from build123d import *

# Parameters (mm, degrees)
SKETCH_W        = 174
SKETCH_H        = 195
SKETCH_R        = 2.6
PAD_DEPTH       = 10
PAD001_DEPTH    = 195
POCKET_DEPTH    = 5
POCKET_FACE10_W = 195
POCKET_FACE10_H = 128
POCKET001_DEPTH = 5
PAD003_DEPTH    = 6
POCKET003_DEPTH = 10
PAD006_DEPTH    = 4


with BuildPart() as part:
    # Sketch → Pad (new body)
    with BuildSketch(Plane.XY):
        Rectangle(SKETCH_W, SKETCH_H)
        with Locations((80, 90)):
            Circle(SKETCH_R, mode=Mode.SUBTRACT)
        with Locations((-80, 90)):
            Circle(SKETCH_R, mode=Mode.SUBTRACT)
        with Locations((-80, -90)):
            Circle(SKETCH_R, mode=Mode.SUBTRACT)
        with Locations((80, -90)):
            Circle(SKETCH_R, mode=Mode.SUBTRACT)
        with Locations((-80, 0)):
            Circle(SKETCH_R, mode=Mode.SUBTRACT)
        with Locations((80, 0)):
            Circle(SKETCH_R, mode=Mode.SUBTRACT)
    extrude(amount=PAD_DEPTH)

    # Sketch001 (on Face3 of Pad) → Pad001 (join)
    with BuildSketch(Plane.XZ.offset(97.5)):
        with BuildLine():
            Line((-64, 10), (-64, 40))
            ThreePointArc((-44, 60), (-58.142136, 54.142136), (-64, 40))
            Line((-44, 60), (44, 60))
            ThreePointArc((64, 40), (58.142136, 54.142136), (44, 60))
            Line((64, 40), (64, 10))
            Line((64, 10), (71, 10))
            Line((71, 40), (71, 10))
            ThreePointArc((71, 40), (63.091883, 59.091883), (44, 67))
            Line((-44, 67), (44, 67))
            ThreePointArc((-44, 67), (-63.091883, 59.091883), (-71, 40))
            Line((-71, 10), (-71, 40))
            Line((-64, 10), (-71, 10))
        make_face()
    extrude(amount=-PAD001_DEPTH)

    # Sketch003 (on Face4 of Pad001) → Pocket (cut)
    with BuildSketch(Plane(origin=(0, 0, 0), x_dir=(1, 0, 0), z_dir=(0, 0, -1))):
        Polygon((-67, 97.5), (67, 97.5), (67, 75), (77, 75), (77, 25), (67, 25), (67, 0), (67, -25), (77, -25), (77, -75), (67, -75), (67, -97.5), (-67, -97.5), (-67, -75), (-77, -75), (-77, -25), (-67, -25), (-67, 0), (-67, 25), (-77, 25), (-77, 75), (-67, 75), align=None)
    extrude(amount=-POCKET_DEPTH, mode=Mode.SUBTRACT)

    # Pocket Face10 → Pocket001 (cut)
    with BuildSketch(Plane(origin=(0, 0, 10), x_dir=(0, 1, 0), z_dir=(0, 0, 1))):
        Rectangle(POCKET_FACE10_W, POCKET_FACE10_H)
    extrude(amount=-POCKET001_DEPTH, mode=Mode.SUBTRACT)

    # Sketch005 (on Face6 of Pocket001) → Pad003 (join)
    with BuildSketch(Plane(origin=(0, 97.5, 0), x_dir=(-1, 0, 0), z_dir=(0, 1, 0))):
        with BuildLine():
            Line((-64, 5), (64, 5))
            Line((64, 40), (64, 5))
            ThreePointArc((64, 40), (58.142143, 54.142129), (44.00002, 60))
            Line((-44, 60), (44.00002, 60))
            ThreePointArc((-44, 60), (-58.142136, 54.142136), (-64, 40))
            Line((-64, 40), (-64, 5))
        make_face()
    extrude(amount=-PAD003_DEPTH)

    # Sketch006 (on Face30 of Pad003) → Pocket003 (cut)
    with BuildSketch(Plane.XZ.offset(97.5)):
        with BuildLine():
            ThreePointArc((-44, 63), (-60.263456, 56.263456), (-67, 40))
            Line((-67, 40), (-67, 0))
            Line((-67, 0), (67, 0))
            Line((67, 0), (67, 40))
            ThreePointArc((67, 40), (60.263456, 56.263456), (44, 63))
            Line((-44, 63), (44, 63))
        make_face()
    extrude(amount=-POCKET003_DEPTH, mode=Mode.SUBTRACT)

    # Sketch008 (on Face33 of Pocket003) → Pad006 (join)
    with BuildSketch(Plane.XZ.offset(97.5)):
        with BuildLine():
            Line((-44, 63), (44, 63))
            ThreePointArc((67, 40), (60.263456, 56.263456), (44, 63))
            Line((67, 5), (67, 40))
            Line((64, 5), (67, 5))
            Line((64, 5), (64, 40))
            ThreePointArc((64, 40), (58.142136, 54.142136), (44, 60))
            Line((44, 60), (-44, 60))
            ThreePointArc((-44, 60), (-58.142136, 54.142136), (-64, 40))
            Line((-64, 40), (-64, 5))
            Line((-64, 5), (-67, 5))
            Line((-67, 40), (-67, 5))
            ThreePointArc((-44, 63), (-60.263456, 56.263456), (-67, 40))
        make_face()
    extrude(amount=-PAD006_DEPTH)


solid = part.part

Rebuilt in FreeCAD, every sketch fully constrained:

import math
import FreeCAD as App
import Part
import Sketcher
from FreeCAD import Vector
Q = App.Units.Quantity


def add_polygon(sketch, points):
    """Adds a closed chain of lines whose ends are joined by coincident constraints."""
    first, n = sketch.GeometryCount, len(points)
    for a, b in zip(points, points[1:] + points[:1]):
        sketch.addGeometry(Part.LineSegment(App.Vector(*a, 0), App.Vector(*b, 0)), False)
    for i in range(n):
        sketch.addConstraint(Sketcher.Constraint("Coincident", first + i, 2, first + (i + 1) % n, 1))

doc = App.newDocument("Part")
body = doc.addObject("PartDesign::Body", "Body")

# Sketch on XY plane
sketch1 = body.newObject("Sketcher::SketchObject", "Sketch")
sketch1.AttachmentSupport = (doc.getObject("XY_Plane"), [""])
sketch1.MapMode = "FlatFace"
add_polygon(sketch1, [(-87, 97.5), (-87, -97.5), (87, -97.5), (87, 97.5)])  # lines 0-3
sketch1.addGeometry(Part.Circle(Vector(-80, -90, 0), Vector(0, 0, 1), 2.6), False)  # 4
sketch1.addGeometry(Part.Circle(Vector(80, -90, 0), Vector(0, 0, 1), 2.6), False)  # 5
sketch1.addGeometry(Part.Circle(Vector(-80, 0, 0), Vector(0, 0, 1), 2.6), False)  # 6
sketch1.addGeometry(Part.Circle(Vector(-80, 90, 0), Vector(0, 0, 1), 2.6), False)  # 7
sketch1.addGeometry(Part.Circle(Vector(80, 0, 0), Vector(0, 0, 1), 2.6), False)  # 8
sketch1.addGeometry(Part.Circle(Vector(80, 90, 0), Vector(0, 0, 1), 2.6), False)  # 9
sketch1.addConstraint(Sketcher.Constraint("Vertical", 0))
sketch1.addConstraint(Sketcher.Constraint("Horizontal", 1))
sketch1.addConstraint(Sketcher.Constraint("Vertical", 2))
sketch1.addConstraint(Sketcher.Constraint("Horizontal", 3))
sketch1.addConstraint(Sketcher.Constraint("Equal", 4, 5))
sketch1.addConstraint(Sketcher.Constraint("Equal", 5, 6))
sketch1.addConstraint(Sketcher.Constraint("Equal", 6, 7))
sketch1.addConstraint(Sketcher.Constraint("Equal", 7, 8))
sketch1.addConstraint(Sketcher.Constraint("Equal", 8, 9))
sketch1.addConstraint(Sketcher.Constraint("Symmetric", 5, 3, 7, 3, -1, 1))
sketch1.addConstraint(Sketcher.Constraint("Symmetric", 6, 3, 8, 3, -1, 1))
sketch1.addConstraint(Sketcher.Constraint("Symmetric", 4, 3, 9, 3, -1, 1))
sketch1.addConstraint(Sketcher.Constraint("Symmetric", 0, 2, 2, 2, -1, 1))
sketch1.addConstraint(Sketcher.Constraint("Symmetric", 4, 3, 5, 3, -2))
sketch1.addConstraint(Sketcher.Constraint("PointOnObject", 6, 3, -1))
sketch1.addConstraint(Sketcher.Constraint("Vertical", 4, 3, 6, 3))
sketch1.addConstraint(Sketcher.Constraint("Diameter", 4, Q("5.2 mm")))
sketch1.addConstraint(Sketcher.Constraint("DistanceX", 1, 1, 1, 2, Q("174 mm")))
sketch1.addConstraint(Sketcher.Constraint("DistanceY", 0, 2, 0, 1, Q("195 mm")))
sketch1.addConstraint(Sketcher.Constraint("DistanceX", 4, 3, -1, 1, Q("80 mm")))
sketch1.addConstraint(Sketcher.Constraint("DistanceY", 4, 3, -1, 1, Q("90 mm")))
pad1 = body.newObject("PartDesign::Pad", "Pad")
pad1.Profile = sketch1
pad1.Length = 10

# Sketch on XZ plane
sketch2 = body.newObject("Sketcher::SketchObject", "Sketch001")
sketch2.AttachmentSupport = (doc.getObject("XZ_Plane"), [""])
sketch2.MapMode = "FlatFace"
sketch2.AttachmentOffset = App.Placement(Vector(0, 0, 97.5), App.Rotation())
sketch2.addGeometry(Part.LineSegment(Vector(-64, 10, 0), Vector(-64, 40, 0)), False)
sketch2.addGeometry(Part.ArcOfCircle(Part.Circle(Vector(-44.000001, 40.000001, 0), Vector(0, 0, 1), 19.999999), math.radians(89.999996), math.radians(180.000004)), False)
sketch2.addGeometry(Part.LineSegment(Vector(-44, 60, 0), Vector(44, 60, 0)), False)
sketch2.addGeometry(Part.ArcOfCircle(Part.Circle(Vector(44.000001, 40.000001, 0), Vector(0, 0, 1), 19.999999), math.radians(-0.000004), math.radians(90.000004)), False)
sketch2.addGeometry(Part.LineSegment(Vector(64, 40, 0), Vector(64, 10, 0)), False)
sketch2.addGeometry(Part.LineSegment(Vector(64, 10, 0), Vector(71, 10, 0)), False)
sketch2.addGeometry(Part.LineSegment(Vector(71, 10, 0), Vector(71, 40, 0)), False)
sketch2.addGeometry(Part.ArcOfCircle(Part.Circle(Vector(44, 40, 0), Vector(0, 0, 1), 27), math.radians(0.000001), math.radians(89.999999)), False)
sketch2.addGeometry(Part.LineSegment(Vector(44, 67, 0), Vector(-44, 67, 0)), False)
sketch2.addGeometry(Part.ArcOfCircle(Part.Circle(Vector(-44, 40, 0), Vector(0, 0, 1), 27), math.radians(90.000001), math.radians(179.999999)), False)
sketch2.addGeometry(Part.LineSegment(Vector(-71, 40, 0), Vector(-71, 10, 0)), False)
sketch2.addGeometry(Part.LineSegment(Vector(-71, 10, 0), Vector(-64, 10, 0)), False)
sketch2.addConstraint(Sketcher.Constraint("Tangent", 0, 2, 1, 2))
sketch2.addConstraint(Sketcher.Constraint("Tangent", 1, 1, 2, 1))
sketch2.addConstraint(Sketcher.Constraint("Tangent", 2, 2, 3, 2))
sketch2.addConstraint(Sketcher.Constraint("Tangent", 3, 1, 4, 1))
sketch2.addConstraint(Sketcher.Constraint("Coincident", 4, 2, 5, 1))
sketch2.addConstraint(Sketcher.Constraint("Coincident", 5, 2, 6, 1))
sketch2.addConstraint(Sketcher.Constraint("Tangent", 6, 2, 7, 1))
sketch2.addConstraint(Sketcher.Constraint("Tangent", 7, 2, 8, 1))
sketch2.addConstraint(Sketcher.Constraint("Tangent", 8, 2, 9, 1))
sketch2.addConstraint(Sketcher.Constraint("Tangent", 9, 2, 10, 1))
sketch2.addConstraint(Sketcher.Constraint("Coincident", 10, 2, 11, 1))
sketch2.addConstraint(Sketcher.Constraint("Coincident", 11, 2, 0, 1))
sketch2.addConstraint(Sketcher.Constraint("Vertical", 0))
sketch2.addConstraint(Sketcher.Constraint("Horizontal", 2))
sketch2.addConstraint(Sketcher.Constraint("Vertical", 4))
sketch2.addConstraint(Sketcher.Constraint("Horizontal", 5))
sketch2.addConstraint(Sketcher.Constraint("Vertical", 6))
sketch2.addConstraint(Sketcher.Constraint("Horizontal", 8))
sketch2.addConstraint(Sketcher.Constraint("Vertical", 10))
sketch2.addConstraint(Sketcher.Constraint("Horizontal", 11))
sketch2.addConstraint(Sketcher.Constraint("Coincident", 7, 3, 3, 3))
sketch2.addConstraint(Sketcher.Constraint("Coincident", 9, 3, 1, 3))
sketch2.addConstraint(Sketcher.Constraint("Equal", 1, 3))
sketch2.addConstraint(Sketcher.Constraint("Symmetric", 5, 2, 10, 2, -2))
sketch2.addConstraint(Sketcher.Constraint("Radius", 1, Q("19.999999 mm")))
sketch2.addConstraint(Sketcher.Constraint("Radius", 7, Q("27 mm")))
sketch2.addConstraint(Sketcher.Constraint("DistanceX", 2, 1, 2, 2, Q("88 mm")))
sketch2.addConstraint(Sketcher.Constraint("DistanceY", 0, 1, 0, 2, Q("30 mm")))
sketch2.addConstraint(Sketcher.Constraint("DistanceY", -1, 1, 1, 3, Q("40.000001 mm")))
pad2 = body.newObject("PartDesign::Pad", "Pad001")
pad2.Profile = sketch2
pad2.Length = 195
pad2.Reversed = True

# Sketch on XY plane
sketch3 = body.newObject("Sketcher::SketchObject", "Sketch002")
sketch3.AttachmentSupport = (doc.getObject("XY_Plane"), [""])
sketch3.MapMode = "FlatFace"
add_polygon(sketch3, [(67, -97.5), (-67, -97.5), (-67, -75), (-77, -75), (-77, -25), (-67, -25), (-67, 25), (-77, 25), (-77, 75), (-67, 75), (-67, 97.5), (67, 97.5), (67, 75), (77, 75), (77, 25), (67, 25), (67, -25), (77, -25), (77, -75), (67, -75)])  # lines 0-19
sketch3.addConstraint(Sketcher.Constraint("Horizontal", 0))
sketch3.addConstraint(Sketcher.Constraint("Vertical", 1))
sketch3.addConstraint(Sketcher.Constraint("Horizontal", 2))
sketch3.addConstraint(Sketcher.Constraint("Vertical", 3))
sketch3.addConstraint(Sketcher.Constraint("Horizontal", 4))
sketch3.addConstraint(Sketcher.Constraint("Vertical", 5))
sketch3.addConstraint(Sketcher.Constraint("Horizontal", 6))
sketch3.addConstraint(Sketcher.Constraint("Vertical", 7))
sketch3.addConstraint(Sketcher.Constraint("Horizontal", 8))
sketch3.addConstraint(Sketcher.Constraint("Vertical", 9))
sketch3.addConstraint(Sketcher.Constraint("Horizontal", 10))
sketch3.addConstraint(Sketcher.Constraint("Vertical", 11))
sketch3.addConstraint(Sketcher.Constraint("Horizontal", 12))
sketch3.addConstraint(Sketcher.Constraint("Vertical", 13))
sketch3.addConstraint(Sketcher.Constraint("Horizontal", 14))
sketch3.addConstraint(Sketcher.Constraint("Vertical", 15))
sketch3.addConstraint(Sketcher.Constraint("Horizontal", 16))
sketch3.addConstraint(Sketcher.Constraint("Vertical", 17))
sketch3.addConstraint(Sketcher.Constraint("Horizontal", 18))
sketch3.addConstraint(Sketcher.Constraint("Vertical", 19))
sketch3.addConstraint(Sketcher.Constraint("Symmetric", 0, 2, 10, 2, -1, 1))
sketch3.addConstraint(Sketcher.Constraint("Symmetric", 2, 2, 12, 2, -1, 1))
sketch3.addConstraint(Sketcher.Constraint("Symmetric", 4, 2, 14, 2, -1, 1))
sketch3.addConstraint(Sketcher.Constraint("Symmetric", 6, 2, 16, 2, -1, 1))
sketch3.addConstraint(Sketcher.Constraint("Symmetric", 8, 2, 18, 2, -1, 1))
sketch3.addConstraint(Sketcher.Constraint("Symmetric", 8, 2, 11, 2, -2))
sketch3.addConstraint(Sketcher.Constraint("Symmetric", 6, 2, 13, 2, -2))
sketch3.addConstraint(Sketcher.Constraint("Vertical", 1, 2, 4, 2))
sketch3.addConstraint(Sketcher.Constraint("Equal", 3, 5))
sketch3.addConstraint(Sketcher.Constraint("DistanceX", 0, 2, 0, 1, Q("134 mm")))
sketch3.addConstraint(Sketcher.Constraint("DistanceX", 2, 2, 2, 1, Q("10 mm")))
sketch3.addConstraint(Sketcher.Constraint("DistanceY", 3, 1, 3, 2, Q("50 mm")))
sketch3.addConstraint(Sketcher.Constraint("DistanceY", 1, 1, 1, 2, Q("22.5 mm")))
pocket1 = body.newObject("PartDesign::Pocket", "Pocket")
pocket1.Profile = sketch3
pocket1.Length = 5
pocket1.Reversed = True

# Sketch on XY plane
sketch4 = body.newObject("Sketcher::SketchObject", "Sketch003")
sketch4.AttachmentSupport = (doc.getObject("XY_Plane"), [""])
sketch4.MapMode = "FlatFace"
sketch4.AttachmentOffset = App.Placement(Vector(0, 0, 10), App.Rotation())
add_polygon(sketch4, [(-64, -97.5), (64, -97.5), (64, 97.5), (-64, 97.5)])  # lines 0-3
sketch4.addConstraint(Sketcher.Constraint("Horizontal", 0))
sketch4.addConstraint(Sketcher.Constraint("Vertical", 1))
sketch4.addConstraint(Sketcher.Constraint("Horizontal", 2))
sketch4.addConstraint(Sketcher.Constraint("Vertical", 3))
sketch4.addConstraint(Sketcher.Constraint("Symmetric", 0, 2, 2, 2, -1, 1))
sketch4.addConstraint(Sketcher.Constraint("DistanceX", 0, 1, 0, 2, Q("128 mm")))
sketch4.addConstraint(Sketcher.Constraint("DistanceY", 1, 1, 1, 2, Q("195 mm")))
pocket2 = body.newObject("PartDesign::Pocket", "Pocket001")
pocket2.Profile = sketch4
pocket2.Length = 5

# Sketch on XZ plane
sketch5 = body.newObject("Sketcher::SketchObject", "Sketch004")
sketch5.AttachmentSupport = (doc.getObject("XZ_Plane"), [""])
sketch5.MapMode = "FlatFace"
sketch5.AttachmentOffset = App.Placement(Vector(0, 0, -97.5), App.Rotation())
sketch5.addGeometry(Part.LineSegment(Vector(64, 5, 0), Vector(-64, 5, 0)), False)
sketch5.addGeometry(Part.LineSegment(Vector(-64, 5, 0), Vector(-64, 40, 0)), False)
sketch5.addGeometry(Part.ArcOfCircle(Part.Circle(Vector(-44.000001, 40.000001, 0), Vector(0, 0, 1), 19.999999), math.radians(90.000054), math.radians(180.000004)), False)
sketch5.addGeometry(Part.LineSegment(Vector(-44.00002, 60, 0), Vector(44, 60, 0)), False)
sketch5.addGeometry(Part.ArcOfCircle(Part.Circle(Vector(44.000001, 40.000001, 0), Vector(0, 0, 1), 19.999999), math.radians(-0.000004), math.radians(90.000004)), False)
sketch5.addGeometry(Part.LineSegment(Vector(64, 40, 0), Vector(64, 5, 0)), False)
sketch5.addConstraint(Sketcher.Constraint("Coincident", 0, 2, 1, 1))
sketch5.addConstraint(Sketcher.Constraint("Tangent", 1, 2, 2, 2))
sketch5.addConstraint(Sketcher.Constraint("Tangent", 2, 1, 3, 1))
sketch5.addConstraint(Sketcher.Constraint("Tangent", 3, 2, 4, 2))
sketch5.addConstraint(Sketcher.Constraint("Tangent", 4, 1, 5, 1))
sketch5.addConstraint(Sketcher.Constraint("Coincident", 5, 2, 0, 1))
sketch5.addConstraint(Sketcher.Constraint("Horizontal", 0))
sketch5.addConstraint(Sketcher.Constraint("Vertical", 1))
sketch5.addConstraint(Sketcher.Constraint("Horizontal", 3))
sketch5.addConstraint(Sketcher.Constraint("Vertical", 5))
sketch5.addConstraint(Sketcher.Constraint("Equal", 2, 4))
sketch5.addConstraint(Sketcher.Constraint("Radius", 2, Q("19.999999 mm")))
sketch5.addConstraint(Sketcher.Constraint("DistanceX", 0, 2, 0, 1, Q("128 mm")))
sketch5.addConstraint(Sketcher.Constraint("DistanceY", 1, 1, 1, 2, Q("35 mm")))
sketch5.addConstraint(Sketcher.Constraint("DistanceX", 2, 3, -1, 1, Q("44.000001 mm")))
sketch5.addConstraint(Sketcher.Constraint("DistanceY", -1, 1, 2, 3, Q("40.000001 mm")))
pad3 = body.newObject("PartDesign::Pad", "Pad002")
pad3.Profile = sketch5
pad3.Length = 6

# Sketch on XZ plane
sketch6 = body.newObject("Sketcher::SketchObject", "Sketch005")
sketch6.AttachmentSupport = (doc.getObject("XZ_Plane"), [""])
sketch6.MapMode = "FlatFace"
sketch6.AttachmentOffset = App.Placement(Vector(0, 0, 97.5), App.Rotation())
sketch6.addGeometry(Part.ArcOfCircle(Part.Circle(Vector(-44, 40, 0), Vector(0, 0, 1), 23), math.radians(90), math.radians(180)), False)
sketch6.addGeometry(Part.LineSegment(Vector(-67, 40, 0), Vector(-67, 0, 0)), False)
sketch6.addGeometry(Part.LineSegment(Vector(-67, 0, 0), Vector(67, 0, 0)), False)
sketch6.addGeometry(Part.LineSegment(Vector(67, 0, 0), Vector(67, 40, 0)), False)
sketch6.addGeometry(Part.ArcOfCircle(Part.Circle(Vector(44, 40, 0), Vector(0, 0, 1), 23), math.radians(0), math.radians(90)), False)
sketch6.addGeometry(Part.LineSegment(Vector(44, 63, 0), Vector(-44, 63, 0)), False)
sketch6.addConstraint(Sketcher.Constraint("Tangent", 0, 2, 1, 1))
sketch6.addConstraint(Sketcher.Constraint("Coincident", 1, 2, 2, 1))
sketch6.addConstraint(Sketcher.Constraint("Coincident", 2, 2, 3, 1))
sketch6.addConstraint(Sketcher.Constraint("Tangent", 3, 2, 4, 1))
sketch6.addConstraint(Sketcher.Constraint("Tangent", 4, 2, 5, 1))
sketch6.addConstraint(Sketcher.Constraint("Tangent", 5, 2, 0, 1))
sketch6.addConstraint(Sketcher.Constraint("Vertical", 1))
sketch6.addConstraint(Sketcher.Constraint("Horizontal", 2))
sketch6.addConstraint(Sketcher.Constraint("Vertical", 3))
sketch6.addConstraint(Sketcher.Constraint("Horizontal", 5))
sketch6.addConstraint(Sketcher.Constraint("Equal", 0, 4))
sketch6.addConstraint(Sketcher.Constraint("Symmetric", 1, 2, 2, 2, -1, 1))
sketch6.addConstraint(Sketcher.Constraint("Radius", 0, Q("23 mm")))
sketch6.addConstraint(Sketcher.Constraint("DistanceX", 2, 1, 2, 2, Q("134 mm")))
sketch6.addConstraint(Sketcher.Constraint("DistanceY", 1, 2, 1, 1, Q("40 mm")))
pocket3 = body.newObject("PartDesign::Pocket", "Pocket002")
pocket3.Profile = sketch6
pocket3.Length = 10

# Sketch on XZ plane
sketch7 = body.newObject("Sketcher::SketchObject", "Sketch006")
sketch7.AttachmentSupport = (doc.getObject("XZ_Plane"), [""])
sketch7.MapMode = "FlatFace"
sketch7.AttachmentOffset = App.Placement(Vector(0, 0, 97.5), App.Rotation())
sketch7.addGeometry(Part.LineSegment(Vector(44, 63, 0), Vector(-44, 63, 0)), False)
sketch7.addGeometry(Part.ArcOfCircle(Part.Circle(Vector(-44, 40, 0), Vector(0, 0, 1), 23), math.radians(90), math.radians(180)), False)
sketch7.addGeometry(Part.LineSegment(Vector(-67, 40, 0), Vector(-67, 5, 0)), False)
sketch7.addGeometry(Part.LineSegment(Vector(-67, 5, 0), Vector(-64, 5, 0)), False)
sketch7.addGeometry(Part.LineSegment(Vector(-64, 5, 0), Vector(-64, 40, 0)), False)
sketch7.addGeometry(Part.ArcOfCircle(Part.Circle(Vector(-44.000001, 40.000001, 0), Vector(0, 0, 1), 19.999999), math.radians(89.999996), math.radians(180.000004)), False)
sketch7.addGeometry(Part.LineSegment(Vector(-44, 60, 0), Vector(44, 60, 0)), False)
sketch7.addGeometry(Part.ArcOfCircle(Part.Circle(Vector(44.000001, 40.000001, 0), Vector(0, 0, 1), 19.999999), math.radians(-0.000004), math.radians(90.000004)), False)
sketch7.addGeometry(Part.LineSegment(Vector(64, 40, 0), Vector(64, 5, 0)), False)
sketch7.addGeometry(Part.LineSegment(Vector(64, 5, 0), Vector(67, 5, 0)), False)
sketch7.addGeometry(Part.LineSegment(Vector(67, 5, 0), Vector(67, 40, 0)), False)
sketch7.addGeometry(Part.ArcOfCircle(Part.Circle(Vector(44, 40, 0), Vector(0, 0, 1), 23), math.radians(0), math.radians(90)), False)
sketch7.addConstraint(Sketcher.Constraint("Tangent", 0, 2, 1, 1))
sketch7.addConstraint(Sketcher.Constraint("Tangent", 1, 2, 2, 1))
sketch7.addConstraint(Sketcher.Constraint("Coincident", 2, 2, 3, 1))
sketch7.addConstraint(Sketcher.Constraint("Coincident", 3, 2, 4, 1))
sketch7.addConstraint(Sketcher.Constraint("Tangent", 4, 2, 5, 2))
sketch7.addConstraint(Sketcher.Constraint("Tangent", 5, 1, 6, 1))
sketch7.addConstraint(Sketcher.Constraint("Tangent", 6, 2, 7, 2))
sketch7.addConstraint(Sketcher.Constraint("Tangent", 7, 1, 8, 1))
sketch7.addConstraint(Sketcher.Constraint("Coincident", 8, 2, 9, 1))
sketch7.addConstraint(Sketcher.Constraint("Coincident", 9, 2, 10, 1))
sketch7.addConstraint(Sketcher.Constraint("Tangent", 10, 2, 11, 1))
sketch7.addConstraint(Sketcher.Constraint("Tangent", 11, 2, 0, 1))
sketch7.addConstraint(Sketcher.Constraint("Horizontal", 0))
sketch7.addConstraint(Sketcher.Constraint("Vertical", 2))
sketch7.addConstraint(Sketcher.Constraint("Horizontal", 3))
sketch7.addConstraint(Sketcher.Constraint("Vertical", 4))
sketch7.addConstraint(Sketcher.Constraint("Horizontal", 6))
sketch7.addConstraint(Sketcher.Constraint("Vertical", 8))
sketch7.addConstraint(Sketcher.Constraint("Horizontal", 9))
sketch7.addConstraint(Sketcher.Constraint("Vertical", 10))
sketch7.addConstraint(Sketcher.Constraint("Coincident", 5, 3, 1, 3))
sketch7.addConstraint(Sketcher.Constraint("Coincident", 11, 3, 7, 3))
sketch7.addConstraint(Sketcher.Constraint("Equal", 5, 7))
sketch7.addConstraint(Sketcher.Constraint("Symmetric", 3, 2, 8, 2, -2))
sketch7.addConstraint(Sketcher.Constraint("Radius", 1, Q("23 mm")))
sketch7.addConstraint(Sketcher.Constraint("Radius", 5, Q("19.999999 mm")))
sketch7.addConstraint(Sketcher.Constraint("DistanceX", 0, 2, 0, 1, Q("88 mm")))
sketch7.addConstraint(Sketcher.Constraint("DistanceY", 2, 2, 2, 1, Q("35 mm")))
sketch7.addConstraint(Sketcher.Constraint("DistanceY", -1, 1, 1, 3, Q("40 mm")))
pad4 = body.newObject("PartDesign::Pad", "Pad003")
pad4.Profile = sketch7
pad4.Length = 4
pad4.Reversed = True

doc.recompute()
